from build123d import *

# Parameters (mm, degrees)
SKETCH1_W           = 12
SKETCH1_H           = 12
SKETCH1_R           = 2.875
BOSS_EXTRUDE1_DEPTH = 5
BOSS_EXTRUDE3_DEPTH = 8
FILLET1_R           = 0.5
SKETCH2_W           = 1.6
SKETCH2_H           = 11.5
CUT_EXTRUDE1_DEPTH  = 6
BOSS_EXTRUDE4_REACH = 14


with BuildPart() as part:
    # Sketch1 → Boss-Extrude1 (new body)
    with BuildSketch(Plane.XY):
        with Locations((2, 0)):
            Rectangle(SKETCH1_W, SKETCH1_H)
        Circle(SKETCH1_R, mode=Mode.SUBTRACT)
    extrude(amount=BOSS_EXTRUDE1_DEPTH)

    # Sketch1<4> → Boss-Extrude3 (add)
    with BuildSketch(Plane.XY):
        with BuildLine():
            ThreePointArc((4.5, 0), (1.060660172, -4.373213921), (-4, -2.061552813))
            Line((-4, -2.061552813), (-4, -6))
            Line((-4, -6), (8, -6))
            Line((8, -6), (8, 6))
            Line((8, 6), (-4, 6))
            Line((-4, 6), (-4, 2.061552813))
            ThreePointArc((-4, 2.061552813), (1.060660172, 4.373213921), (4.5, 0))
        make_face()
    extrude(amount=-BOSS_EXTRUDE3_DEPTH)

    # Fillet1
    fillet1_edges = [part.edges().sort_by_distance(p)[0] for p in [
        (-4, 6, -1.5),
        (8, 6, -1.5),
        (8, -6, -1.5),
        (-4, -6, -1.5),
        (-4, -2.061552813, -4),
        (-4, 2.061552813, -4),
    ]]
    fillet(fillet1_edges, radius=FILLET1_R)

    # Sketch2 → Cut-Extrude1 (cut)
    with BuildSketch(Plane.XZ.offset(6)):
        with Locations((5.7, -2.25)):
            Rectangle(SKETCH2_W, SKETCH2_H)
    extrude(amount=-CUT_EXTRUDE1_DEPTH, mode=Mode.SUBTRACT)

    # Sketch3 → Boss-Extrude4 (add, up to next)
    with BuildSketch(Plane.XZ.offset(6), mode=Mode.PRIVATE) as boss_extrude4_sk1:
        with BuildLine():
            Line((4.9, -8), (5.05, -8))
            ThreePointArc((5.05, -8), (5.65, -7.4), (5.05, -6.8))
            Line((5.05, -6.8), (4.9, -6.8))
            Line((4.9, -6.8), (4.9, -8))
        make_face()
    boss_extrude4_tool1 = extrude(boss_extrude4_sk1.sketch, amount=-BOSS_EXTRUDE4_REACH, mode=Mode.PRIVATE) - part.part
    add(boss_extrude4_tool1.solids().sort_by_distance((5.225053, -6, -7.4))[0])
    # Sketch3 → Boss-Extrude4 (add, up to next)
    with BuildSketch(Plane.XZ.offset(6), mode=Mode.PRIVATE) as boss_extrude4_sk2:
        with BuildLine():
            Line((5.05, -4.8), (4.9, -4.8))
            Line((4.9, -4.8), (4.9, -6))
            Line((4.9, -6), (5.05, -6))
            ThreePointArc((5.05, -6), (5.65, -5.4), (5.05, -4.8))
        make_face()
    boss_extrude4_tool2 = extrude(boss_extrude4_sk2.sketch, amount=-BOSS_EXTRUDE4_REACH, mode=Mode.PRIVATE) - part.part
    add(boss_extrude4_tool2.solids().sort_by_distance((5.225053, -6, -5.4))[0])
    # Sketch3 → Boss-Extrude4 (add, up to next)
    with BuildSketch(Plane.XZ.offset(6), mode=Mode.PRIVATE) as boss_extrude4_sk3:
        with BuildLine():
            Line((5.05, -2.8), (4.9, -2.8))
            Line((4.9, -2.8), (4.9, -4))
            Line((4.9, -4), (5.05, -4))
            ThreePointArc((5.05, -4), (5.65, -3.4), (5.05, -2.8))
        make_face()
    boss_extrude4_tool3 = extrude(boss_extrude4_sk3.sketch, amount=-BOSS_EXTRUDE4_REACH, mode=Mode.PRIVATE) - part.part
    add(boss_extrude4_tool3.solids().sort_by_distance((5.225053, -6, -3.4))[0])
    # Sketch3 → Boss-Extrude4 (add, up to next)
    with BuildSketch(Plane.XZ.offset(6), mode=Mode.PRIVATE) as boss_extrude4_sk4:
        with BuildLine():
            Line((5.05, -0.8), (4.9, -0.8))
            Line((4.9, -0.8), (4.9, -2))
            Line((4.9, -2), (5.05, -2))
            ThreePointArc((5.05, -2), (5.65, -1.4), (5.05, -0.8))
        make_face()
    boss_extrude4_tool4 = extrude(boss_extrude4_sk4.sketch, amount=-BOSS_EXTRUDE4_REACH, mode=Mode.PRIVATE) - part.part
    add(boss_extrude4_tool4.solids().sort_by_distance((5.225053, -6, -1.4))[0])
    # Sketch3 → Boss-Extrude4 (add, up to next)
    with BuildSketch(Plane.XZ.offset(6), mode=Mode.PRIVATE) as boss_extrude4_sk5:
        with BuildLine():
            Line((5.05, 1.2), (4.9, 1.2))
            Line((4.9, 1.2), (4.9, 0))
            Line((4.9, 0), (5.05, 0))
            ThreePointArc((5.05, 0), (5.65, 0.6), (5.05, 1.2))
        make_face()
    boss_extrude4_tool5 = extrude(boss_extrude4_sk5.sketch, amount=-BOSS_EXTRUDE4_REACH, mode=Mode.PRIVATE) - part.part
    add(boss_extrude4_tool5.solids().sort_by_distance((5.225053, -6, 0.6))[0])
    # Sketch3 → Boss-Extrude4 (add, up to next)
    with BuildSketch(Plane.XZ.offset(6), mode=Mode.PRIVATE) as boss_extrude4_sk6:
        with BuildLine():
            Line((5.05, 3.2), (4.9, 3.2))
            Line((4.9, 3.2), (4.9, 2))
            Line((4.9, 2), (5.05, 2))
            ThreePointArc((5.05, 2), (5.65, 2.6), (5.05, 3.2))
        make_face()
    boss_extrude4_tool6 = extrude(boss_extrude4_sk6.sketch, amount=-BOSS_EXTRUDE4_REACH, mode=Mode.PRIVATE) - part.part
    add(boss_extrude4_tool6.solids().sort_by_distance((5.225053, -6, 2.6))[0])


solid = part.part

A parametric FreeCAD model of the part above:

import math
import FreeCAD as App
import Part
import Sketcher

V = App.Vector
Q = App.Units.Quantity


def edges_at(feature, points):
    """Names of the edges that pass closest to the given points."""
    edges = feature.Shape.Edges
    near = lambda p: min(range(len(edges)), key=lambda i: edges[i].distToShape(Part.Vertex(*p))[0])
    return sorted({f"Edge{near(p) + 1}" for p in points})

doc = App.newDocument("Part")
body = doc.addObject("PartDesign::Body", "Body")

# Sketch on XY plane
sketch1 = body.newObject("Sketcher::SketchObject", "Sketch")
sketch1.AttachmentSupport = (doc.getObject("XY_Plane"), [""])
sketch1.MapMode = "FlatFace"
sketch1.addGeometry(Part.LineSegment(V(-4, 6, 0), V(-4, -6, 0)), False)
sketch1.addGeometry(Part.LineSegment(V(-4, -6, 0), V(8, -6, 0)), False)
sketch1.addGeometry(Part.LineSegment(V(8, -6, 0), V(8, 6, 0)), False)
sketch1.addGeometry(Part.LineSegment(V(8, 6, 0), V(-4, 6, 0)), False)
sketch1.addGeometry(Part.Circle(V(0, 0, 0), V(0, 0, 1), 2.875), False)
sketch1.addConstraint(Sketcher.Constraint("Coincident", 0, 2, 1, 1))
sketch1.addConstraint(Sketcher.Constraint("Coincident", 1, 2, 2, 1))
sketch1.addConstraint(Sketcher.Constraint("Coincident", 2, 2, 3, 1))
sketch1.addConstraint(Sketcher.Constraint("Coincident", 3, 2, 0, 1))
sketch1.addConstraint(Sketcher.Constraint("Vertical", 0))
sketch1.addConstraint(Sketcher.Constraint("Horizontal", 1))
sketch1.addConstraint(Sketcher.Constraint("Vertical", 2))
sketch1.addConstraint(Sketcher.Constraint("Horizontal", 3))
sketch1.addConstraint(Sketcher.Constraint("Coincident", 4, 3, -1, 1))
sketch1.addConstraint(Sketcher.Constraint("Equal", 3, 0))
sketch1.addConstraint(Sketcher.Constraint("Diameter", 4, Q("5.75 mm")))
sketch1.addConstraint(Sketcher.Constraint("DistanceX", 1, 1, 1, 2, Q("12 mm")))
sketch1.addConstraint(Sketcher.Constraint("DistanceX", 0, 2, -1, 1, Q("4 mm")))
sketch1.addConstraint(Sketcher.Constraint("DistanceY", 0, 2, -1, 1, Q("6 mm")))
pad1 = body.newObject("PartDesign::Pad", "Pad")
pad1.Profile = sketch1
pad1.Length = 5

# Sketch on XY plane
sketch2 = body.newObject("Sketcher::SketchObject", "Sketch001")
sketch2.AttachmentSupport = (doc.getObject("XY_Plane"), [""])
sketch2.MapMode = "FlatFace"
sketch2.addGeometry(Part.ArcOfCircle(Part.Circle(V(0, 0, 0), V(0, 0, 1), 4.5), math.radians(-152.733956), math.radians(0)), False)
sketch2.addGeometry(Part.LineSegment(V(-4, -2.061553, 0), V(-4, -6, 0)), False)
sketch2.addGeometry(Part.LineSegment(V(-4, -6, 0), V(8, -6, 0)), False)
sketch2.addGeometry(Part.LineSegment(V(8, -6, 0), V(8, 6, 0)), False)
sketch2.addGeometry(Part.LineSegment(V(8, 6, 0), V(-4, 6, 0)), False)
sketch2.addGeometry(Part.LineSegment(V(-4, 6, 0), V(-4, 2.061553, 0)), False)
sketch2.addGeometry(Part.ArcOfCircle(Part.Circle(V(0, 0, 0), V(0, 0, 1), 4.5), math.radians(0), math.radians(152.733956)), False)
sketch2.addConstraint(Sketcher.Constraint("Coincident", 0, 1, 1, 1))
sketch2.addConstraint(Sketcher.Constraint("Coincident", 1, 2, 2, 1))
sketch2.addConstraint(Sketcher.Constraint("Coincident", 2, 2, 3, 1))
sketch2.addConstraint(Sketcher.Constraint("Coincident", 3, 2, 4, 1))
sketch2.addConstraint(Sketcher.Constraint("Coincident", 4, 2, 5, 1))
sketch2.addConstraint(Sketcher.Constraint("Coincident", 5, 2, 6, 2))
sketch2.addConstraint(Sketcher.Constraint("Tangent", 6, 1, 0, 2))
sketch2.addConstraint(Sketcher.Constraint("Vertical", 1))
sketch2.addConstraint(Sketcher.Constraint("Horizontal", 2))
sketch2.addConstraint(Sketcher.Constraint("Vertical", 3))
sketch2.addConstraint(Sketcher.Constraint("Horizontal", 4))
sketch2.addConstraint(Sketcher.Constraint("Vertical", 5))
sketch2.addConstraint(Sketcher.Constraint("Coincident", 0, 3, -1, 1))
sketch2.addConstraint(Sketcher.Constraint("Equal", 0, 6))
sketch2.addConstraint(Sketcher.Constraint("Symmetric", 1, 2, 4, 2, -1))
sketch2.addConstraint(Sketcher.Constraint("PointOnObject", 6, 1, -1))
sketch2.addConstraint(Sketcher.Constraint("Equal", 4, 3))
sketch2.addConstraint(Sketcher.Constraint("Radius", 0, Q("4.5 mm")))
sketch2.addConstraint(Sketcher.Constraint("DistanceX", 2, 1, 2, 2, Q("12 mm")))
sketch2.addConstraint(Sketcher.Constraint("DistanceX", 0, 1, -1, 1, Q("4 mm")))
pad2 = body.newObject("PartDesign::Pad", "Pad001")
pad2.Profile = sketch2
pad2.Length = 8
pad2.Reversed = True
doc.recompute()

fillet = body.newObject("PartDesign::Fillet", "Fillet")
fillet.Base = (pad2, edges_at(pad2, [
    (-4, 6, -1.5),
    (8, 6, -1.5),
    (8, -6, -1.5),
    (-4, -6, -1.5),
    (-4, -2.062, -4),
    (-4, 2.062, -4),
]))
fillet.Radius = 0.5

# Sketch on XZ plane
sketch3 = body.newObject("Sketcher::SketchObject", "Sketch002")
sketch3.AttachmentSupport = (doc.getObject("XZ_Plane"), [""])
sketch3.MapMode = "FlatFace"
sketch3.AttachmentOffset = App.Placement(V(0, 0, 6), App.Rotation())
sketch3.addGeometry(Part.LineSegment(V(4.9, 3.5, 0), V(4.9, -8, 0)), False)
sketch3.addGeometry(Part.LineSegment(V(4.9, -8, 0), V(6.5, -8, 0)), False)
sketch3.addGeometry(Part.LineSegment(V(6.5, -8, 0), V(6.5, 3.5, 0)), False)
sketch3.addGeometry(Part.LineSegment(V(6.5, 3.5, 0), V(4.9, 3.5, 0)), False)
sketch3.addConstraint(Sketcher.Constraint("Coincident", 0, 2, 1, 1))
sketch3.addConstraint(Sketcher.Constraint("Coincident", 1, 2, 2, 1))
sketch3.addConstraint(Sketcher.Constraint("Coincident", 2, 2, 3, 1))
sketch3.addConstraint(Sketcher.Constraint("Coincident", 3, 2, 0, 1))
sketch3.addConstraint(Sketcher.Constraint("Vertical", 0))
sketch3.addConstraint(Sketcher.Constraint("Horizontal", 1))
sketch3.addConstraint(Sketcher.Constraint("Vertical", 2))
sketch3.addConstraint(Sketcher.Constraint("Horizontal", 3))
sketch3.addConstraint(Sketcher.Constraint("DistanceX", 1, 1, 1, 2, Q("1.6 mm")))
sketch3.addConstraint(Sketcher.Constraint("DistanceY", 0, 2, 0, 1, Q("11.5 mm")))
sketch3.addConstraint(Sketcher.Constraint("DistanceY", 0, 2, -1, 1, Q("8 mm")))
sketch3.addConstraint(Sketcher.Constraint("DistanceX", -1, 1, 0, 2, Q("4.9 mm")))
pocket1 = body.newObject("PartDesign::Pocket", "Pocket")
pocket1.Profile = sketch3
pocket1.Length = 6

# Sketch on XZ plane
sketch4 = body.newObject("Sketcher::SketchObject", "Sketch003")
sketch4.AttachmentSupport = (doc.getObject("XZ_Plane"), [""])
sketch4.MapMode = "FlatFace"
sketch4.AttachmentOffset = App.Placement(V(0, 0, 6), App.Rotation())
sketch4.addGeometry(Part.LineSegment(V(4.9, -8, 0), V(5.05, -8, 0)), False)
sketch4.addGeometry(Part.ArcOfCircle(Part.Circle(V(5.05, -7.4, 0), V(0, 0, 1), 0.6), math.radians(-90), math.radians(90)), False)
sketch4.addGeometry(Part.LineSegment(V(5.05, -6.8, 0), V(4.9, -6.8, 0)), False)
sketch4.addGeometry(Part.LineSegment(V(4.9, -6.8, 0), V(4.9, -8, 0)), False)
sketch4.addConstraint(Sketcher.Constraint("Tangent", 0, 2, 1, 1))
sketch4.addConstraint(Sketcher.Constraint("Tangent", 1, 2, 2, 1))
sketch4.addConstraint(Sketcher.Constraint("Coincident", 2, 2, 3, 1))
sketch4.addConstraint(Sketcher.Constraint("Coincident", 3, 2, 0, 1))
sketch4.addConstraint(Sketcher.Constraint("Horizontal", 0))
sketch4.addConstraint(Sketcher.Constraint("Horizontal", 2))
sketch4.addConstraint(Sketcher.Constraint("Vertical", 3))
sketch4.addConstraint(Sketcher.Constraint("Radius", 1, Q("0.6 mm")))
sketch4.addConstraint(Sketcher.Constraint("DistanceY", 0, 2, -1, 1, Q("8 mm")))
sketch4.addConstraint(Sketcher.Constraint("DistanceX", 0, 1, 0, 2, Q("0.15 mm")))
sketch4.addConstraint(Sketcher.Constraint("DistanceX", -1, 1, 2, 2, Q("4.9 mm")))
pad3 = body.newObject("PartDesign::Pad", "Pad002")
pad3.Profile = sketch4
pad3.Type = "UpToFirst"
pad3.Reversed = True

# Sketch on XZ plane
sketch5 = body.newObject("Sketcher::SketchObject", "Sketch004")
sketch5.AttachmentSupport = (doc.getObject("XZ_Plane"), [""])
sketch5.MapMode = "FlatFace"
sketch5.AttachmentOffset = App.Placement(V(0, 0, 6), App.Rotation())
sketch5.addGeometry(Part.LineSegment(V(5.05, -4.8, 0), V(4.9, -4.8, 0)), False)
sketch5.addGeometry(Part.LineSegment(V(4.9, -4.8, 0), V(4.9, -6, 0)), False)
sketch5.addGeometry(Part.LineSegment(V(4.9, -6, 0), V(5.05, -6, 0)), False)
sketch5.addGeometry(Part.ArcOfCircle(Part.Circle(V(5.05, -5.4, 0), V(0, 0, 1), 0.6), math.radians(-90), math.radians(90)), False)
sketch5.addConstraint(Sketcher.Constraint("Coincident", 0, 2, 1, 1))
sketch5.addConstraint(Sketcher.Constraint("Coincident", 1, 2, 2, 1))
sketch5.addConstraint(Sketcher.Constraint("Tangent", 2, 2, 3, 1))
sketch5.addConstraint(Sketcher.Constraint("Tangent", 3, 2, 0, 1))
sketch5.addConstraint(Sketcher.Constraint("Horizontal", 0))
sketch5.addConstraint(Sketcher.Constraint("Vertical", 1))
sketch5.addConstraint(Sketcher.Constraint("Horizontal", 2))
sketch5.addConstraint(Sketcher.Constraint("Radius", 3, Q("0.6 mm")))
sketch5.addConstraint(Sketcher.Constraint("DistanceY", 1, 2, -1, 1, Q("6 mm")))
sketch5.addConstraint(Sketcher.Constraint("DistanceX", 0, 2, 0, 1, Q("0.15 mm")))
sketch5.addConstraint(Sketcher.Constraint("DistanceX", -1, 1, 0, 2, Q("4.9 mm")))
pad4 = body.newObject("PartDesign::Pad", "Pad003")
pad4.Profile = sketch5
pad4.Type = "UpToFirst"
pad4.Reversed = True

# Sketch on XZ plane
sketch6 = body.newObject("Sketcher::SketchObject", "Sketch005")
sketch6.AttachmentSupport = (doc.getObject("XZ_Plane"), [""])
sketch6.MapMode = "FlatFace"
sketch6.AttachmentOffset = App.Placement(V(0, 0, 6), App.Rotation())
sketch6.addGeometry(Part.LineSegment(V(5.05, -2.8, 0), V(4.9, -2.8, 0)), False)
sketch6.addGeometry(Part.LineSegment(V(4.9, -2.8, 0), V(4.9, -4, 0)), False)
sketch6.addGeometry(Part.LineSegment(V(4.9, -4, 0), V(5.05, -4, 0)), False)
sketch6.addGeometry(Part.ArcOfCircle(Part.Circle(V(5.05, -3.4, 0), V(0, 0, 1), 0.6), math.radians(-90), math.radians(90)), False)
sketch6.addConstraint(Sketcher.Constraint("Coincident", 0, 2, 1, 1))
sketch6.addConstraint(Sketcher.Constraint("Coincident", 1, 2, 2, 1))
sketch6.addConstraint(Sketcher.Constraint("Tangent", 2, 2, 3, 1))
sketch6.addConstraint(Sketcher.Constraint("Tangent", 3, 2, 0, 1))
sketch6.addConstraint(Sketcher.Constraint("Horizontal", 0))
sketch6.addConstraint(Sketcher.Constraint("Vertical", 1))
sketch6.addConstraint(Sketcher.Constraint("Horizontal", 2))
sketch6.addConstraint(Sketcher.Constraint("Radius", 3, Q("0.6 mm")))
sketch6.addConstraint(Sketcher.Constraint("DistanceY", 1, 2, -1, 1, Q("4 mm")))
sketch6.addConstraint(Sketcher.Constraint("DistanceX", 0, 2, 0, 1, Q("0.15 mm")))
sketch6.addConstraint(Sketcher.Constraint("DistanceX", -1, 1, 0, 2, Q("4.9 mm")))
pad5 = body.newObject("PartDesign::Pad", "Pad004")
pad5.Profile = sketch6
pad5.Type = "UpToFirst"
pad5.Reversed = True

# Sketch on XZ plane
sketch7 = body.newObject("Sketcher::SketchObject", "Sketch006")
sketch7.AttachmentSupport = (doc.getObject("XZ_Plane"), [""])
sketch7.MapMode = "FlatFace"
sketch7.AttachmentOffset = App.Placement(V(0, 0, 6), App.Rotation())
sketch7.addGeometry(Part.LineSegment(V(5.05, -0.8, 0), V(4.9, -0.8, 0)), False)
sketch7.addGeometry(Part.LineSegment(V(4.9, -0.8, 0), V(4.9, -2, 0)), False)
sketch7.addGeometry(Part.LineSegment(V(4.9, -2, 0), V(5.05, -2, 0)), False)
sketch7.addGeometry(Part.ArcOfCircle(Part.Circle(V(5.05, -1.4, 0), V(0, 0, 1), 0.6), math.radians(-90), math.radians(90)), False)
sketch7.addConstraint(Sketcher.Constraint("Coincident", 0, 2, 1, 1))
sketch7.addConstraint(Sketcher.Constraint("Coincident", 1, 2, 2, 1))
sketch7.addConstraint(Sketcher.Constraint("Tangent", 2, 2, 3, 1))
sketch7.addConstraint(Sketcher.Constraint("Tangent", 3, 2, 0, 1))
sketch7.addConstraint(Sketcher.Constraint("Horizontal", 0))
sketch7.addConstraint(Sketcher.Constraint("Vertical", 1))
sketch7.addConstraint(Sketcher.Constraint("Horizontal", 2))
sketch7.addConstraint(Sketcher.Constraint("Radius", 3, Q("0.6 mm")))
sketch7.addConstraint(Sketcher.Constraint("DistanceY", 1, 2, -1, 1, Q("2 mm")))
sketch7.addConstraint(Sketcher.Constraint("DistanceX", 0, 2, 0, 1, Q("0.15 mm")))
sketch7.addConstraint(Sketcher.Constraint("DistanceX", -1, 1, 0, 2, Q("4.9 mm")))
pad6 = body.newObject("PartDesign::Pad", "Pad005")
pad6.Profile = sketch7
pad6.Type = "UpToFirst"
pad6.Reversed = True

# Sketch on XZ plane
sketch8 = body.newObject("Sketcher::SketchObject", "Sketch007")
sketch8.AttachmentSupport = (doc.getObject("XZ_Plane"), [""])
sketch8.MapMode = "FlatFace"
sketch8.AttachmentOffset = App.Placement(V(0, 0, 6), App.Rotation())
sketch8.addGeometry(Part.LineSegment(V(5.05, 1.2, 0), V(4.9, 1.2, 0)), False)
sketch8.addGeometry(Part.LineSegment(V(4.9, 1.2, 0), V(4.9, 0, 0)), False)
sketch8.addGeometry(Part.LineSegment(V(4.9, 0, 0), V(5.05, 0, 0)), False)
sketch8.addGeometry(Part.ArcOfCircle(Part.Circle(V(5.05, 0.6, 0), V(0, 0, 1), 0.6), math.radians(-90), math.radians(90)), False)
sketch8.addConstraint(Sketcher.Constraint("Coincident", 0, 2, 1, 1))
sketch8.addConstraint(Sketcher.Constraint("Coincident", 1, 2, 2, 1))
sketch8.addConstraint(Sketcher.Constraint("Tangent", 2, 2, 3, 1))
sketch8.addConstraint(Sketcher.Constraint("Tangent", 3, 2, 0, 1))
sketch8.addConstraint(Sketcher.Constraint("Horizontal", 0))
sketch8.addConstraint(Sketcher.Constraint("Vertical", 1))
sketch8.addConstraint(Sketcher.Constraint("Horizontal", 2))
sketch8.addConstraint(Sketcher.Constraint("PointOnObject", 1, 2, -1))
sketch8.addConstraint(Sketcher.Constraint("Radius", 3, Q("0.6 mm")))
sketch8.addConstraint(Sketcher.Constraint("DistanceX", 0, 2, 0, 1, Q("0.15 mm")))
sketch8.addConstraint(Sketcher.Constraint("DistanceX", -1, 1, 0, 2, Q("4.9 mm")))
pad7 = body.newObject("PartDesign::Pad", "Pad006")
pad7.Profile = sketch8
pad7.Type = "UpToFirst"
pad7.Reversed = True

# Sketch on XZ plane
sketch9 = body.newObject("Sketcher::SketchObject", "Sketch008")
sketch9.AttachmentSupport = (doc.getObject("XZ_Plane"), [""])
sketch9.MapMode = "FlatFace"
sketch9.AttachmentOffset = App.Placement(V(0, 0, 6), App.Rotation())
sketch9.addGeometry(Part.LineSegment(V(5.05, 3.2, 0), V(4.9, 3.2, 0)), False)
sketch9.addGeometry(Part.LineSegment(V(4.9, 3.2, 0), V(4.9, 2, 0)), False)
sketch9.addGeometry(Part.LineSegment(V(4.9, 2, 0), V(5.05, 2, 0)), False)
sketch9.addGeometry(Part.ArcOfCircle(Part.Circle(V(5.05, 2.6, 0), V(0, 0, 1), 0.6), math.radians(-90), math.radians(90)), False)
sketch9.addConstraint(Sketcher.Constraint("Coincident", 0, 2, 1, 1))
sketch9.addConstraint(Sketcher.Constraint("Coincident", 1, 2, 2, 1))
sketch9.addConstraint(Sketcher.Constraint("Tangent", 2, 2, 3, 1))
sketch9.addConstraint(Sketcher.Constraint("Tangent", 3, 2, 0, 1))
sketch9.addConstraint(Sketcher.Constraint("Horizontal", 0))
sketch9.addConstraint(Sketcher.Constraint("Vertical", 1))
sketch9.addConstraint(Sketcher.Constraint("Horizontal", 2))
sketch9.addConstraint(Sketcher.Constraint("Radius", 3, Q("0.6 mm")))
sketch9.addConstraint(Sketcher.Constraint("DistanceY", -1, 1, 1, 2, Q("2 mm")))
sketch9.addConstraint(Sketcher.Constraint("DistanceX", 0, 2, 0, 1, Q("0.15 mm")))
sketch9.addConstraint(Sketcher.Constraint("DistanceX", -1, 1, 0, 2, Q("4.9 mm")))
pad8 = body.newObject("PartDesign::Pad", "Pad007")
pad8.Profile = sketch9
pad8.Type = "UpToFirst"
pad8.Reversed = True

doc.recompute()
